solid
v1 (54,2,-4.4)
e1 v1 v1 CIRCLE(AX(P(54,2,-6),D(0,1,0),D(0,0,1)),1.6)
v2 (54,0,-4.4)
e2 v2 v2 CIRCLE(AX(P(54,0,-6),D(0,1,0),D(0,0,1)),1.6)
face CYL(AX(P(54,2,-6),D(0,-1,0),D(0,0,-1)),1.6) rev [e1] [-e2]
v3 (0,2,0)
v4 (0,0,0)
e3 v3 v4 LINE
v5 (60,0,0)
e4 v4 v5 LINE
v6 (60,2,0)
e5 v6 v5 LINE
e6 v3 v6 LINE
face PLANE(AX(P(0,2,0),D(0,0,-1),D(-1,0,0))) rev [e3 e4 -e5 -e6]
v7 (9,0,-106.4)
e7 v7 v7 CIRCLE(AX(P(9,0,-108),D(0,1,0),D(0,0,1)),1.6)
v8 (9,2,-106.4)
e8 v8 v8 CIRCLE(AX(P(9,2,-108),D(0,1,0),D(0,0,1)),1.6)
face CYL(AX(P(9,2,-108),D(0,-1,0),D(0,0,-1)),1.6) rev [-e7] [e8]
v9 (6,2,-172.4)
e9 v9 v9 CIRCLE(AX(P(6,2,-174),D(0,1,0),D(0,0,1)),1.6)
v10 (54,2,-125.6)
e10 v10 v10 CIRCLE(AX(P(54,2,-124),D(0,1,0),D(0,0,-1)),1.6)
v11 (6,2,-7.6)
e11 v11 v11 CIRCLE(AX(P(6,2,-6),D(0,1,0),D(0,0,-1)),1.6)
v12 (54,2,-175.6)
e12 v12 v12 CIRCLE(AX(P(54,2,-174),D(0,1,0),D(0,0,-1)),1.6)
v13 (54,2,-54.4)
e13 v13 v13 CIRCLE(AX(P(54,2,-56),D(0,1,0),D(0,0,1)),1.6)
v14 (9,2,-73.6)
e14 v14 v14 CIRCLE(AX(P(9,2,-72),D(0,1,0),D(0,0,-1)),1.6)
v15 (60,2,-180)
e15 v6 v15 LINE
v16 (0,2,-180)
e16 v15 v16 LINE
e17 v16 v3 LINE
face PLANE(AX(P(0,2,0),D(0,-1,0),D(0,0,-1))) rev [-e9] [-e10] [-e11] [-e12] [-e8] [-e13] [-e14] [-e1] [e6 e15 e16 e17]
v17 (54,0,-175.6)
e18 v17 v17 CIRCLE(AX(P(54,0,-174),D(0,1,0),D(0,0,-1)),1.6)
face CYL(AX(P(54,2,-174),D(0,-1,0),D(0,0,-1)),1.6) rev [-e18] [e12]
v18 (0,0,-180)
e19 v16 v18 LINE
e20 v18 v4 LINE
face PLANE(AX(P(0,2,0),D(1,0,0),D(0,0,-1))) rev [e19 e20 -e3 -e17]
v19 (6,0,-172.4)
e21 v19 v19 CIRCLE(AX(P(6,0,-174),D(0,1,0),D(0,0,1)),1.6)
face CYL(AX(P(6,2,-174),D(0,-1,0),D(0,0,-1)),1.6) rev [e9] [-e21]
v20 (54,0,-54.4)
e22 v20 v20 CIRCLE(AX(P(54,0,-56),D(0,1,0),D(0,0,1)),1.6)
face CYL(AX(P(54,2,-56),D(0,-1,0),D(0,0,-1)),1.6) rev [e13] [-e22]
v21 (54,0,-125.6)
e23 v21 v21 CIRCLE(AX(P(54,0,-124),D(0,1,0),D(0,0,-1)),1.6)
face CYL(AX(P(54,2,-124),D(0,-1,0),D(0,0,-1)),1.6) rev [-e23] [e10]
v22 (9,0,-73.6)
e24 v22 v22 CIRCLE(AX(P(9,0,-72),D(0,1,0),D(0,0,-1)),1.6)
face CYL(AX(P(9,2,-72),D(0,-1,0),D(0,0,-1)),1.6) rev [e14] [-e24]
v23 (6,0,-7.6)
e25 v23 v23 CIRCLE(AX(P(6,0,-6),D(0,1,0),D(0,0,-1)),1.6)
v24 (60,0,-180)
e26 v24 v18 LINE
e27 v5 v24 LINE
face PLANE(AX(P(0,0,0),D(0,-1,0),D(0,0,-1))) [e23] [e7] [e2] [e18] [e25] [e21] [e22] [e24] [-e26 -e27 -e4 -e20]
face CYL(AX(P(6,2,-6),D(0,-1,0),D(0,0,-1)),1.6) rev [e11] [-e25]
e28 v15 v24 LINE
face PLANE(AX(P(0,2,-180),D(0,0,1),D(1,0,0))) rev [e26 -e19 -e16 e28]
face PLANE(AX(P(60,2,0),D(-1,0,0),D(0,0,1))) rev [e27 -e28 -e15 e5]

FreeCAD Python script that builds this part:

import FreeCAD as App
import Part
import Sketcher


def add_polygon(sketch, points):
    """Adds a closed chain of lines whose ends are joined by coincident constraints."""
    first, n = sketch.GeometryCount, len(points)
    for a, b in zip(points, points[1:] + points[:1]):
        sketch.addGeometry(Part.LineSegment(App.Vector(*a, 0), App.Vector(*b, 0)), False)
    for i in range(n):
        sketch.addConstraint(Sketcher.Constraint("Coincident", first + i, 2, first + (i + 1) % n, 1))

doc = App.newDocument("Part")
body = doc.addObject("PartDesign::Body", "Body")

# Sketch on XZ plane
sketch1 = doc.addObject("Sketcher::SketchObject", "Sketch")
body.addObject(sketch1)
sketch1.AttachmentSupport = (doc.XZ_Plane, [""])
sketch1.MapMode = "FlatFace"
add_polygon(sketch1, [(0, -180), (0, 0), (60, 0), (60, -180)])  # lines 0-3
sketch1.addGeometry(Part.Circle(App.Vector(6, -6, 0), App.Vector(0, 0, 1), 1.6), False)  # 4
sketch1.addGeometry(Part.Circle(App.Vector(9, -72, 0), App.Vector(0, 0, 1), 1.6), False)  # 5
sketch1.addGeometry(Part.Circle(App.Vector(54, -6, 0), App.Vector(0, 0, 1), 1.6), False)  # 6
sketch1.addGeometry(Part.Circle(App.Vector(54, -56, 0), App.Vector(0, 0, 1), 1.6), False)  # 7
sketch1.addGeometry(Part.Circle(App.Vector(9, -108, 0), App.Vector(0, 0, 1), 1.6), False)  # 8
sketch1.addGeometry(Part.Circle(App.Vector(6, -174, 0), App.Vector(0, 0, 1), 1.6), False)  # 9
sketch1.addGeometry(Part.Circle(App.Vector(54, -124, 0), App.Vector(0, 0, 1), 1.6), False)  # 10
sketch1.addGeometry(Part.Circle(App.Vector(54, -174, 0), App.Vector(0, 0, 1), 1.6), False)  # 11
sketch1.addConstraint([
    Sketcher.Constraint("Vertical", 0),
    Sketcher.Constraint("Horizontal", 1),
    Sketcher.Constraint("Vertical", 2),
    Sketcher.Constraint("Horizontal", 3),
    Sketcher.Constraint("Coincident", 0, 2, -1, 1),
    Sketcher.Constraint("Equal", 4, 5),
    Sketcher.Constraint("Equal", 5, 6),
    Sketcher.Constraint("Equal", 6, 7),
    Sketcher.Constraint("Equal", 7, 8),
    Sketcher.Constraint("Equal", 8, 9),
    Sketcher.Constraint("Equal", 9, 10),
    Sketcher.Constraint("Equal", 10, 11),
    Sketcher.Constraint("Horizontal", 4, 3, 6, 3),
    Sketcher.Constraint("Horizontal", 9, 3, 11, 3),
    Sketcher.Constraint("Vertical", 6, 3, 7, 3),
    Sketcher.Constraint("Vertical", 5, 3, 8, 3),
    Sketcher.Constraint("Vertical", 4, 3, 9, 3),
    Sketcher.Constraint("Vertical", 7, 3, 10, 3),
    Sketcher.Constraint("Vertical", 10, 3, 11, 3),
    Sketcher.Constraint("Diameter", 4, 3.2),
    Sketcher.Constraint("DistanceX", 1, 1, 1, 2, 60.0),
    Sketcher.Constraint("DistanceY", 0, 1, 0, 2, 180.0),
    Sketcher.Constraint("DistanceX", -1, 1, 4, 3, 6.0),
    Sketcher.Constraint("DistanceY", 4, 3, -1, 1, 6.0),
    Sketcher.Constraint("DistanceX", -1, 1, 5, 3, 9.0),
    Sketcher.Constraint("DistanceY", 5, 3, -1, 1, 72.0),
    Sketcher.Constraint("DistanceX", -1, 1, 6, 3, 54.0),
    Sketcher.Constraint("DistanceY", 7, 3, -1, 1, 56.0),
    Sketcher.Constraint("DistanceY", 8, 3, -1, 1, 108.0),
    Sketcher.Constraint("DistanceY", 9, 3, -1, 1, 174.0),
    Sketcher.Constraint("DistanceY", 10, 3, -1, 1, 124.0),
])
pad1 = doc.addObject("PartDesign::Pad", "Pad")
body.addObject(pad1)
pad1.Profile = sketch1
pad1.Length = 2
pad1.Reversed = True

doc.recompute()
